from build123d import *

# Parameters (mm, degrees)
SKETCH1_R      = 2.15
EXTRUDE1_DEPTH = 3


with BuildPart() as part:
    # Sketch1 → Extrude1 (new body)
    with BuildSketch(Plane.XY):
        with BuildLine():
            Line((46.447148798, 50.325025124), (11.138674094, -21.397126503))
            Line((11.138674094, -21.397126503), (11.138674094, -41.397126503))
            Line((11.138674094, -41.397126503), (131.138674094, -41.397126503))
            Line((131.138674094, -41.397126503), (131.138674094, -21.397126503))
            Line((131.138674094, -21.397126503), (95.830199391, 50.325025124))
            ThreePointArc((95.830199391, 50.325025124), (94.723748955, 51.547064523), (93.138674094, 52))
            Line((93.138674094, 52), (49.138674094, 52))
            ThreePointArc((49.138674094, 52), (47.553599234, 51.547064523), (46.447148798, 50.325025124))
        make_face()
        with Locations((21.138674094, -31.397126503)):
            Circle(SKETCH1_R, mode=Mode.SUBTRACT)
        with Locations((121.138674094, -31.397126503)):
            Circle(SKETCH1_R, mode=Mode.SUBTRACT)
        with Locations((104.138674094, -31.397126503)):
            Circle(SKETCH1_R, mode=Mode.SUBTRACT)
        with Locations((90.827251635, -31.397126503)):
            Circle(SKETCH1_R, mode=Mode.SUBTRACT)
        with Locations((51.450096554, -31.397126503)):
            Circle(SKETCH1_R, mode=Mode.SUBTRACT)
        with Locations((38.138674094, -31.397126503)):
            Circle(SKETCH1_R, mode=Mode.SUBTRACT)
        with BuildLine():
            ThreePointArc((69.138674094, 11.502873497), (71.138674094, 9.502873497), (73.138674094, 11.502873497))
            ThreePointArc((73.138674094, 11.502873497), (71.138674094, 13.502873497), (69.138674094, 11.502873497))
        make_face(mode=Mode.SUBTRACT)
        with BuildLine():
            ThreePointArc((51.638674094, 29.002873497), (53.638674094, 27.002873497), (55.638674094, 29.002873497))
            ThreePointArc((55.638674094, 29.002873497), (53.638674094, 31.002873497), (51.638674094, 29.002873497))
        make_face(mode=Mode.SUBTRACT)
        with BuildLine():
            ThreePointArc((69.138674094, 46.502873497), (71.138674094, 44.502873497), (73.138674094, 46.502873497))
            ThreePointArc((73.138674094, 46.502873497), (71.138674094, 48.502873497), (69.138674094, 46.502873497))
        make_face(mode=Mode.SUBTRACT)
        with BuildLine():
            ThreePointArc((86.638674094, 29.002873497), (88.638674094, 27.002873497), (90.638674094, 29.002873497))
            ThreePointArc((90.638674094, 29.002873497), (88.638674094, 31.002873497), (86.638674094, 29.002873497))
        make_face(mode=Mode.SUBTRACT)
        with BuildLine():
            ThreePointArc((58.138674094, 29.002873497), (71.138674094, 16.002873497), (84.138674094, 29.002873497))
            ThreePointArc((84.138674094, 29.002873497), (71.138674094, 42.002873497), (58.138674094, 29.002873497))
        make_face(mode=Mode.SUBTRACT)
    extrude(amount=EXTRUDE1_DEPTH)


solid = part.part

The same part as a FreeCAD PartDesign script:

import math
import FreeCAD as App
import Part
import Sketcher
from FreeCAD import Vector

doc = App.newDocument("Part")
body = doc.addObject("PartDesign::Body", "Body")

sketch1 = body.newObject("Sketcher::SketchObject", "Sketch")
sketch1.AttachmentSupport = (doc.getObject("XY_Plane"), [""])
sketch1.MapMode = "FlatFace"
sketch1.addGeometry([
    Part.LineSegment(Vector(46.447149, 50.325025, 0), Vector(11.138674, -21.397127, 0)),
    Part.LineSegment(Vector(11.138674, -21.397127, 0), Vector(11.138674, -41.397127, 0)),
    Part.LineSegment(Vector(11.138674, -41.397127, 0), Vector(131.138674, -41.397127, 0)),
    Part.LineSegment(Vector(131.138674, -41.397127, 0), Vector(131.138674, -21.397127, 0)),
    Part.LineSegment(Vector(131.138674, -21.397127, 0), Vector(95.830199, 50.325025, 0)),
    Part.ArcOfCircle(Part.Circle(Vector(93.138674, 49, 0), Vector(0, 0, 1), 3), math.radians(26.210804), math.radians(90)),
    Part.LineSegment(Vector(93.138674, 52, 0), Vector(49.138674, 52, 0)),
    Part.ArcOfCircle(Part.Circle(Vector(49.138674, 49, 0), Vector(0, 0, 1), 3), math.radians(90), math.radians(153.789196)),
    Part.Circle(Vector(21.138674, -31.397127, 0), Vector(0, 0, 1), 2.15),
    Part.Circle(Vector(38.138674, -31.397127, 0), Vector(0, 0, 1), 2.15),
    Part.Circle(Vector(51.450097, -31.397127, 0), Vector(0, 0, 1), 2.15),
    Part.Circle(Vector(90.827252, -31.397127, 0), Vector(0, 0, 1), 2.15),
    Part.Circle(Vector(104.138674, -31.397127, 0), Vector(0, 0, 1), 2.15),
    Part.Circle(Vector(121.138674, -31.397127, 0), Vector(0, 0, 1), 2.15),
    Part.Circle(Vector(71.138674, 11.502873, 0), Vector(0, 0, 1), 2),
    Part.Circle(Vector(53.638674, 29.002873, 0), Vector(0, 0, 1), 2),
    Part.Circle(Vector(71.138674, 29.002873, 0), Vector(0, 0, 1), 13),
    Part.Circle(Vector(71.138674, 46.502873, 0), Vector(0, 0, 1), 2),
    Part.Circle(Vector(88.638674, 29.002873, 0), Vector(0, 0, 1), 2),
], False)
sketch1.addConstraint([
    Sketcher.Constraint("Coincident", 0, 2, 1, 1),
    Sketcher.Constraint("Coincident", 1, 2, 2, 1),
    Sketcher.Constraint("Coincident", 2, 2, 3, 1),
    Sketcher.Constraint("Coincident", 3, 2, 4, 1),
    Sketcher.Constraint("Tangent", 4, 2, 5, 1),
    Sketcher.Constraint("Tangent", 5, 2, 6, 1),
    Sketcher.Constraint("Tangent", 6, 2, 7, 1),
    Sketcher.Constraint("Tangent", 7, 2, 0, 1),
    Sketcher.Constraint("Vertical", 1),
    Sketcher.Constraint("Horizontal", 2),
    Sketcher.Constraint("Vertical", 3),
    Sketcher.Constraint("Horizontal", 6),
    Sketcher.Constraint("Equal", 5, 7),
    Sketcher.Constraint("Equal", 8, 9),
    Sketcher.Constraint("Equal", 9, 10),
    Sketcher.Constraint("Equal", 10, 11),
    Sketcher.Constraint("Equal", 11, 12),
    Sketcher.Constraint("Equal", 12, 13),
    Sketcher.Constraint("Equal", 14, 15),
    Sketcher.Constraint("Equal", 15, 17),
    Sketcher.Constraint("Equal", 17, 18),
    Sketcher.Constraint("Horizontal", 8, 3, 9, 3),
    Sketcher.Constraint("Horizontal", 9, 3, 10, 3),
    Sketcher.Constraint("Horizontal", 10, 3, 11, 3),
    Sketcher.Constraint("Horizontal", 11, 3, 12, 3),
    Sketcher.Constraint("Horizontal", 12, 3, 13, 3),
    Sketcher.Constraint("Horizontal", 15, 3, 16, 3),
    Sketcher.Constraint("Horizontal", 16, 3, 18, 3),
    Sketcher.Constraint("Horizontal", 0, 2, 3, 2),
    Sketcher.Constraint("Horizontal", 4, 2, 7, 2),
    Sketcher.Constraint("Vertical", 14, 3, 16, 3),
    Sketcher.Constraint("Vertical", 16, 3, 17, 3),
    Sketcher.Constraint("Diameter", 14, 4.0),
    Sketcher.Constraint("Diameter", 16, 26.0),
    Sketcher.Constraint("Radius", 5, 3.0),
    Sketcher.Constraint("Diameter", 8, 4.3),
    Sketcher.Constraint("DistanceX", 2, 1, 2, 2, 120.0),
    Sketcher.Constraint("DistanceX", 6, 2, 6, 1, 44.0),
    Sketcher.Constraint("DistanceY", 1, 2, 1, 1, 20.0),
    Sketcher.Constraint("DistanceY", -1, 1, 5, 3, 49.0),
    Sketcher.Constraint("DistanceX", 8, 3, 7, 3, 28.0),
    Sketcher.Constraint("DistanceX", 8, 3, 9, 3, 17.0),
    Sketcher.Constraint("DistanceX", 9, 3, 12, 3, 66.0),
    Sketcher.Constraint("DistanceX", 12, 3, 13, 3, 17.0),
    Sketcher.Constraint("DistanceX", 7, 3, 14, 3, 22.0),
    Sketcher.Constraint("DistanceY", 14, 3, 17, 3, 35.0),
    Sketcher.Constraint("DistanceX", 15, 3, 18, 3, 35.0),
    Sketcher.Constraint("DistanceY", 8, 3, 0, 2, 10.0),
    Sketcher.Constraint("DistanceY", 10, 3, 14, 3, 42.9),
    Sketcher.Constraint("DistanceX", 7, 3, 15, 3, 4.5),
    Sketcher.Constraint("DistanceY", 14, 3, 15, 3, 17.5),
    Sketcher.Constraint("Distance", 0, 79.9422),
    Sketcher.Constraint("DistanceX", -1, 1, 4, 2, 95.830199),
    Sketcher.Constraint("DistanceX", -1, 1, 11, 3, 90.827252),
    Sketcher.Constraint("DistanceX", -1, 1, 10, 3, 51.450097),
])
pad1 = body.newObject("PartDesign::Pad", "Pad")
pad1.Profile = sketch1
pad1.Length = 3

doc.recompute()
